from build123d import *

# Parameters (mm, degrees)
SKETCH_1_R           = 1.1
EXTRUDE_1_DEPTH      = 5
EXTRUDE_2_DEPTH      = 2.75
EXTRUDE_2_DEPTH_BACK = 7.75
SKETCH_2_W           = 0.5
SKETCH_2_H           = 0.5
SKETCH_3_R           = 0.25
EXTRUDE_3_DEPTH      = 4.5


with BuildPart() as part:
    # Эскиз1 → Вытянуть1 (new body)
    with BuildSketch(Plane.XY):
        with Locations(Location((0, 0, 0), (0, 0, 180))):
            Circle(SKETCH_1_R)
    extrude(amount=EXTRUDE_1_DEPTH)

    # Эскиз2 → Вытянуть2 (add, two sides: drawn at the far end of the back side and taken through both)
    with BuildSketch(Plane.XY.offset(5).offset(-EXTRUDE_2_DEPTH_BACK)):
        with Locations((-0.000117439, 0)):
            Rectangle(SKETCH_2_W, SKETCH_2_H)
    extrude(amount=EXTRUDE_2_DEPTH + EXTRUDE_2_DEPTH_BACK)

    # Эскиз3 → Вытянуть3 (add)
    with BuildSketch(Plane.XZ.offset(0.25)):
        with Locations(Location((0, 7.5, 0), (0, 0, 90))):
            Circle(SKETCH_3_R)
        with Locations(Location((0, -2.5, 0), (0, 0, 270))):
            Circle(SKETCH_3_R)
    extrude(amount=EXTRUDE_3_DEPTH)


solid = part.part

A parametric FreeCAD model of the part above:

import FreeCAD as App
import Part
import Sketcher
from FreeCAD import Vector
Q = App.Units.Quantity


def add_polygon(sketch, points):
    """Adds a closed chain of lines whose ends are joined by coincident constraints."""
    first, n = sketch.GeometryCount, len(points)
    for a, b in zip(points, points[1:] + points[:1]):
        sketch.addGeometry(Part.LineSegment(App.Vector(*a, 0), App.Vector(*b, 0)), False)
    for i in range(n):
        sketch.addConstraint(Sketcher.Constraint("Coincident", first + i, 2, first + (i + 1) % n, 1))

doc = App.newDocument("Part")
body = doc.addObject("PartDesign::Body", "Body")

# Sketch on XY plane
sketch1 = body.newObject("Sketcher::SketchObject", "Sketch")
sketch1.AttachmentSupport = (doc.getObject("XY_Plane"), [""])
sketch1.MapMode = "FlatFace"
sketch1.addGeometry(Part.Circle(Vector(0, 0, 0), Vector(0, 0, 1), 1.1), False)
sketch1.addConstraint([
    Sketcher.Constraint("Coincident", 0, 3, -1, 1),
    Sketcher.Constraint("Diameter", 0, Q("2.2 mm")),
])
pad1 = body.newObject("PartDesign::Pad", "Pad")
pad1.Profile = sketch1
pad1.Length = 5

# Sketch on XY plane
sketch2 = body.newObject("Sketcher::SketchObject", "Sketch001")
sketch2.AttachmentSupport = (doc.getObject("XY_Plane"), [""])
sketch2.MapMode = "FlatFace"
sketch2.AttachmentOffset = App.Placement(Vector(0, 0, 5), App.Rotation())
add_polygon(sketch2, [(-0.250117, 0.25), (-0.250117, -0.25), (0.249883, -0.25), (0.249883, 0.25)])  # lines 0-3
sketch2.addConstraint([
    Sketcher.Constraint("Vertical", 0),
    Sketcher.Constraint("Horizontal", 1),
    Sketcher.Constraint("Vertical", 2),
    Sketcher.Constraint("Horizontal", 3),
    Sketcher.Constraint("Equal", 3, 0),
    Sketcher.Constraint("DistanceX", 1, 1, 1, 2, Q("0.5 mm")),
    Sketcher.Constraint("DistanceY", 0, 2, -1, 1, Q("0.25 mm")),
    Sketcher.Constraint("DistanceX", 0, 2, -1, 1, Q("0.250117 mm")),
])
pad2 = body.newObject("PartDesign::Pad", "Pad001")
pad2.Profile = sketch2
pad2.Type = "TwoLengths"
pad2.Length = 2.75
pad2.Length2 = 7.75

# Sketch on XZ plane
sketch3 = body.newObject("Sketcher::SketchObject", "Sketch002")
sketch3.AttachmentSupport = (doc.getObject("XZ_Plane"), [""])
sketch3.MapMode = "FlatFace"
sketch3.AttachmentOffset = App.Placement(Vector(0, 0, 0.25), App.Rotation())
sketch3.addGeometry([
    Part.Circle(Vector(0, 7.5, 0), Vector(0, 0, 1), 0.25),
    Part.Circle(Vector(0, -2.5, 0), Vector(0, 0, 1), 0.25),
], False)
sketch3.addConstraint([
    Sketcher.Constraint("Equal", 0, 1),
    Sketcher.Constraint("PointOnObject", 0, 3, -2),
    Sketcher.Constraint("PointOnObject", 1, 3, -2),
    Sketcher.Constraint("Diameter", 0, Q("0.5 mm")),
    Sketcher.Constraint("DistanceY", 1, 3, 0, 3, Q("10 mm")),
    Sketcher.Constraint("DistanceY", -1, 1, 0, 3, Q("7.5 mm")),
])
pad3 = body.newObject("PartDesign::Pad", "Pad002")
pad3.Profile = sketch3
pad3.Length = 4.5

doc.recompute()
